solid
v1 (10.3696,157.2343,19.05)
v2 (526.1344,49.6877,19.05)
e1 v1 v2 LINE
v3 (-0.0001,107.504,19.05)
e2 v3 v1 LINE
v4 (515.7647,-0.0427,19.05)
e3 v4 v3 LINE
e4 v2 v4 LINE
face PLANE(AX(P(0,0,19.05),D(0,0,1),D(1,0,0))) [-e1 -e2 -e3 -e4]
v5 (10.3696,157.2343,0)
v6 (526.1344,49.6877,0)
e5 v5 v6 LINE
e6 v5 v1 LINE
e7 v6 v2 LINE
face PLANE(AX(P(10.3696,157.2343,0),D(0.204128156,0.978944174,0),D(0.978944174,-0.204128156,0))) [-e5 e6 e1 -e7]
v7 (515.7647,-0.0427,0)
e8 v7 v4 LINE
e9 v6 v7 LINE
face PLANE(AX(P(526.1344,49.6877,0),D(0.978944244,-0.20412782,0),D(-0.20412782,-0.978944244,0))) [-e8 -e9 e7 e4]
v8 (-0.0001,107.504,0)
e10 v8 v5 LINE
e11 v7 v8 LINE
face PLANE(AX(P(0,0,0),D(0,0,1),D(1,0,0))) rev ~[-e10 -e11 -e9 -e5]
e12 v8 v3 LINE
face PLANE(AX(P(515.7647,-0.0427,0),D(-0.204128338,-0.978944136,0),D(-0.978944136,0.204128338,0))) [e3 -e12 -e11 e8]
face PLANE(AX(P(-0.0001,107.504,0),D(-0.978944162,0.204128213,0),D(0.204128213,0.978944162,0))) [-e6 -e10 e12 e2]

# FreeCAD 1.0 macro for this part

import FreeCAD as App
import Part
import Sketcher
Q = App.Units.Quantity


def add_polygon(sketch, points):
    """Adds a closed chain of lines whose ends are joined by coincident constraints."""
    first, n = sketch.GeometryCount, len(points)
    for a, b in zip(points, points[1:] + points[:1]):
        sketch.addGeometry(Part.LineSegment(App.Vector(*a, 0), App.Vector(*b, 0)), False)
    for i in range(n):
        sketch.addConstraint(Sketcher.Constraint("Coincident", first + i, 2, first + (i + 1) % n, 1))

doc = App.newDocument("Part")
body = doc.addObject("PartDesign::Body", "Body")

sketch1 = doc.addObject("Sketcher::SketchObject", "Sketch")
body.addObject(sketch1)
sketch1.AttachmentSupport = (doc.XY_Plane, [""])
sketch1.MapMode = "FlatFace"
add_polygon(sketch1, [(515.7647, -0.0427), (526.1344, 49.6877), (10.3696, 157.2343), (-0.0001, 107.504)])
sketch1.addConstraint([
    Sketcher.Constraint("PointOnObject", 2, 2, -2),
    Sketcher.Constraint("Perpendicular", 0, 1),
    Sketcher.Constraint("Perpendicular", 1, 2),
    Sketcher.Constraint("Perpendicular", 2, 3),
    Sketcher.Constraint("Distance", 0, Q("2 in")),
    Sketcher.Constraint("DistanceY", 3, 2, 1, 2, Q("6.192 in")),
    Sketcher.Constraint("DistanceY", -1, 1, 0, 2, Q("1.9562 in")),
    Sketcher.Constraint("DistanceX", -1, 1, 3, 2, Q("20.3057 in")),
])
pad1 = doc.addObject("PartDesign::Pad", "Pad")
body.addObject(pad1)
pad1.Profile = sketch1
pad1.Length = Q("0.75 in")

doc.recompute()
